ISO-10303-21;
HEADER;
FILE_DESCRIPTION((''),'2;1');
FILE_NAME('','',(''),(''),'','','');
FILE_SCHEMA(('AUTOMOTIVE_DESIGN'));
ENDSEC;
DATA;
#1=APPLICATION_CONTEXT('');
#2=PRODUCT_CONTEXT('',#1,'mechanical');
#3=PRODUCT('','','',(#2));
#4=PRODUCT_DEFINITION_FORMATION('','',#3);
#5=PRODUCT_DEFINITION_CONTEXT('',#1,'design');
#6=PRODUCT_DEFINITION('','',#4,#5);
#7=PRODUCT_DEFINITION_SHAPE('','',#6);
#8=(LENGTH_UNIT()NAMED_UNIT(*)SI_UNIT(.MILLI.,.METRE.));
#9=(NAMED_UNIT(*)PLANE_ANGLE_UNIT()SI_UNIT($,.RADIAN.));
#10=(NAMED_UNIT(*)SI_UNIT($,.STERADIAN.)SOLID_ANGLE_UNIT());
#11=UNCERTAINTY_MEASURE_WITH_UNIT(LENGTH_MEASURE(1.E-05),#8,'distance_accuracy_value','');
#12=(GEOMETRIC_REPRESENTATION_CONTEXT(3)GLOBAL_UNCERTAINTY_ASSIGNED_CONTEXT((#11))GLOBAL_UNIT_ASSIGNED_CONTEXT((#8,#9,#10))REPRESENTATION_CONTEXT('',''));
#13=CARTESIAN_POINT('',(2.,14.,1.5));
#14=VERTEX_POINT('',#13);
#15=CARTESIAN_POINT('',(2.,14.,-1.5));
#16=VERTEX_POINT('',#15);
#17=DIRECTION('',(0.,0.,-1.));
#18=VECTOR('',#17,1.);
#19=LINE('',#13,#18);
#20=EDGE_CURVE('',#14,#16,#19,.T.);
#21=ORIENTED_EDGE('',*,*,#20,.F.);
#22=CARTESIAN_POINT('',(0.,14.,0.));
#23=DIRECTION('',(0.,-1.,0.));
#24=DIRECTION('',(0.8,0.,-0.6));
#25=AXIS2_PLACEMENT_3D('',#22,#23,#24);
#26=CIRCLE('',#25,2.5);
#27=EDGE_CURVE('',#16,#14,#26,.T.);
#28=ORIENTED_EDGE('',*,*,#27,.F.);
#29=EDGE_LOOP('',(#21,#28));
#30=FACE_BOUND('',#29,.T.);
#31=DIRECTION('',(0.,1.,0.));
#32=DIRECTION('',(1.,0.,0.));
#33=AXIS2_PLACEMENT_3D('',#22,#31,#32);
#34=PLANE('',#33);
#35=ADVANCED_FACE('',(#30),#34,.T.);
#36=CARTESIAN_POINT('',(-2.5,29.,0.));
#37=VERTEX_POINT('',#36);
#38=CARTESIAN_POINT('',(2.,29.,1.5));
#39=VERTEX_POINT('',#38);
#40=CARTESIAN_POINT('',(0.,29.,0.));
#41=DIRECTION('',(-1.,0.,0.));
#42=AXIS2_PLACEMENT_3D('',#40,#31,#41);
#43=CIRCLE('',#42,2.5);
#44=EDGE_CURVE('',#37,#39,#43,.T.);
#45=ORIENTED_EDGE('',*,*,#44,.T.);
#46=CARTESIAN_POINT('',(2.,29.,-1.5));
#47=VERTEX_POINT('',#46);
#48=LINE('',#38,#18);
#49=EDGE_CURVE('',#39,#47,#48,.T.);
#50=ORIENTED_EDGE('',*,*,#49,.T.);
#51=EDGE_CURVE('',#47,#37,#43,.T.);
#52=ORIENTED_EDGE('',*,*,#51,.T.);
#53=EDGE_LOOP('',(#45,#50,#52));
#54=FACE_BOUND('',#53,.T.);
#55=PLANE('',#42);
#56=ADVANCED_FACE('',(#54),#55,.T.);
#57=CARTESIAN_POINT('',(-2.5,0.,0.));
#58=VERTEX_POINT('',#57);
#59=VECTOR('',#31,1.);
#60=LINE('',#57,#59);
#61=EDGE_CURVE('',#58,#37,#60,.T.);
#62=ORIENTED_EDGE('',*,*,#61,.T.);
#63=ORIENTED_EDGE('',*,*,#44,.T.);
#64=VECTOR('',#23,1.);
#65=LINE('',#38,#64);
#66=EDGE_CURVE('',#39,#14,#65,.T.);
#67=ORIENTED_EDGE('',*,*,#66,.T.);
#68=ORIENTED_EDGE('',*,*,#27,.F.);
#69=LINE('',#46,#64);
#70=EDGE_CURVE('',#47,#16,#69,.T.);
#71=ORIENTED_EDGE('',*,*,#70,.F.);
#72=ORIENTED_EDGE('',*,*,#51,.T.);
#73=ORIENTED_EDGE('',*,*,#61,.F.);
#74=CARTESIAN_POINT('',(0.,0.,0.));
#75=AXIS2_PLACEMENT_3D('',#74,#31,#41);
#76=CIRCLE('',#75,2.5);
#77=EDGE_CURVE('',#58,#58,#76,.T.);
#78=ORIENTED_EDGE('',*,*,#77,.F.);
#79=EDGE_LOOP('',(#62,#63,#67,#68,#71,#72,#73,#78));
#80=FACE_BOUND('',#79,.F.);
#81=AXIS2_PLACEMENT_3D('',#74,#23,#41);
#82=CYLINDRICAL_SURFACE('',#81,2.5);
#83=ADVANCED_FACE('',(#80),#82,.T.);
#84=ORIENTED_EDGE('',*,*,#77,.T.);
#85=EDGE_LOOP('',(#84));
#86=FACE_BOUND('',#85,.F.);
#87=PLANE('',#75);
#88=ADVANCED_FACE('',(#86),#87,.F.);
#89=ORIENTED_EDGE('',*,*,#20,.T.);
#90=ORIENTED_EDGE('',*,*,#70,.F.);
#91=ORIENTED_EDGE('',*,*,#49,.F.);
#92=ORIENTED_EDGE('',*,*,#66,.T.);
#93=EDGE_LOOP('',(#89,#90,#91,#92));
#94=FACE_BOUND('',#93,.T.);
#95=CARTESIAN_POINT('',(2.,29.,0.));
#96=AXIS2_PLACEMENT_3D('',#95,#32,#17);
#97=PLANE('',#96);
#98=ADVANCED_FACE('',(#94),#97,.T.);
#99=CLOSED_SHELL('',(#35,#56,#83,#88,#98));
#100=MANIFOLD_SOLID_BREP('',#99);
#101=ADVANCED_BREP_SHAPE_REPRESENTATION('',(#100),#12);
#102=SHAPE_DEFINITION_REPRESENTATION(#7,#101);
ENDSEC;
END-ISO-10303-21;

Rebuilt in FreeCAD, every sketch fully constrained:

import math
import FreeCAD as App
import Part
import Sketcher

V = App.Vector
Q = App.Units.Quantity

doc = App.newDocument("Part")
body = doc.addObject("PartDesign::Body", "Body")

# Sketch on XZ plane
sketch1 = body.newObject("Sketcher::SketchObject", "Sketch")
sketch1.AttachmentSupport = (doc.getObject("XZ_Plane"), [""])
sketch1.MapMode = "FlatFace"
sketch1.addGeometry(Part.Circle(V(0, 0, 0), V(0, 0, 1), 2.5), False)
sketch1.addConstraint(Sketcher.Constraint("Coincident", 0, 3, -1, 1))
sketch1.addConstraint(Sketcher.Constraint("Diameter", 0, Q("5 mm")))
pad1 = body.newObject("PartDesign::Pad", "Pad")
pad1.Profile = sketch1
pad1.Length = 29
pad1.Reversed = True

# Sketch on XZ plane
sketch2 = body.newObject("Sketcher::SketchObject", "Sketch001")
sketch2.AttachmentSupport = (doc.getObject("XZ_Plane"), [""])
sketch2.MapMode = "FlatFace"
sketch2.AttachmentOffset = App.Placement(V(0, 0, -29), App.Rotation())
sketch2.addGeometry(Part.ArcOfCircle(Part.Circle(V(0, 0, 0), V(0, 0, 1), 2.5), math.radians(-37), math.radians(37)), False)
sketch2.addGeometry(Part.LineSegment(V(2, -1.5, 0), V(2, 1.5, 0)), False)
sketch2.addConstraint(Sketcher.Constraint("Coincident", 0, 1, 1, 1))
sketch2.addConstraint(Sketcher.Constraint("Coincident", 1, 2, 0, 2))
sketch2.addConstraint(Sketcher.Constraint("Vertical", 1))
sketch2.addConstraint(Sketcher.Constraint("Coincident", 0, 3, -1, 1))
sketch2.addConstraint(Sketcher.Constraint("Radius", 0, Q("2.5 mm")))
sketch2.addConstraint(Sketcher.Constraint("DistanceY", 1, 1, 1, 2, Q("3 mm")))
pocket1 = body.newObject("PartDesign::Pocket", "Pocket")
pocket1.Profile = sketch2
pocket1.Length = 15
pocket1.Reversed = True

doc.recompute()
